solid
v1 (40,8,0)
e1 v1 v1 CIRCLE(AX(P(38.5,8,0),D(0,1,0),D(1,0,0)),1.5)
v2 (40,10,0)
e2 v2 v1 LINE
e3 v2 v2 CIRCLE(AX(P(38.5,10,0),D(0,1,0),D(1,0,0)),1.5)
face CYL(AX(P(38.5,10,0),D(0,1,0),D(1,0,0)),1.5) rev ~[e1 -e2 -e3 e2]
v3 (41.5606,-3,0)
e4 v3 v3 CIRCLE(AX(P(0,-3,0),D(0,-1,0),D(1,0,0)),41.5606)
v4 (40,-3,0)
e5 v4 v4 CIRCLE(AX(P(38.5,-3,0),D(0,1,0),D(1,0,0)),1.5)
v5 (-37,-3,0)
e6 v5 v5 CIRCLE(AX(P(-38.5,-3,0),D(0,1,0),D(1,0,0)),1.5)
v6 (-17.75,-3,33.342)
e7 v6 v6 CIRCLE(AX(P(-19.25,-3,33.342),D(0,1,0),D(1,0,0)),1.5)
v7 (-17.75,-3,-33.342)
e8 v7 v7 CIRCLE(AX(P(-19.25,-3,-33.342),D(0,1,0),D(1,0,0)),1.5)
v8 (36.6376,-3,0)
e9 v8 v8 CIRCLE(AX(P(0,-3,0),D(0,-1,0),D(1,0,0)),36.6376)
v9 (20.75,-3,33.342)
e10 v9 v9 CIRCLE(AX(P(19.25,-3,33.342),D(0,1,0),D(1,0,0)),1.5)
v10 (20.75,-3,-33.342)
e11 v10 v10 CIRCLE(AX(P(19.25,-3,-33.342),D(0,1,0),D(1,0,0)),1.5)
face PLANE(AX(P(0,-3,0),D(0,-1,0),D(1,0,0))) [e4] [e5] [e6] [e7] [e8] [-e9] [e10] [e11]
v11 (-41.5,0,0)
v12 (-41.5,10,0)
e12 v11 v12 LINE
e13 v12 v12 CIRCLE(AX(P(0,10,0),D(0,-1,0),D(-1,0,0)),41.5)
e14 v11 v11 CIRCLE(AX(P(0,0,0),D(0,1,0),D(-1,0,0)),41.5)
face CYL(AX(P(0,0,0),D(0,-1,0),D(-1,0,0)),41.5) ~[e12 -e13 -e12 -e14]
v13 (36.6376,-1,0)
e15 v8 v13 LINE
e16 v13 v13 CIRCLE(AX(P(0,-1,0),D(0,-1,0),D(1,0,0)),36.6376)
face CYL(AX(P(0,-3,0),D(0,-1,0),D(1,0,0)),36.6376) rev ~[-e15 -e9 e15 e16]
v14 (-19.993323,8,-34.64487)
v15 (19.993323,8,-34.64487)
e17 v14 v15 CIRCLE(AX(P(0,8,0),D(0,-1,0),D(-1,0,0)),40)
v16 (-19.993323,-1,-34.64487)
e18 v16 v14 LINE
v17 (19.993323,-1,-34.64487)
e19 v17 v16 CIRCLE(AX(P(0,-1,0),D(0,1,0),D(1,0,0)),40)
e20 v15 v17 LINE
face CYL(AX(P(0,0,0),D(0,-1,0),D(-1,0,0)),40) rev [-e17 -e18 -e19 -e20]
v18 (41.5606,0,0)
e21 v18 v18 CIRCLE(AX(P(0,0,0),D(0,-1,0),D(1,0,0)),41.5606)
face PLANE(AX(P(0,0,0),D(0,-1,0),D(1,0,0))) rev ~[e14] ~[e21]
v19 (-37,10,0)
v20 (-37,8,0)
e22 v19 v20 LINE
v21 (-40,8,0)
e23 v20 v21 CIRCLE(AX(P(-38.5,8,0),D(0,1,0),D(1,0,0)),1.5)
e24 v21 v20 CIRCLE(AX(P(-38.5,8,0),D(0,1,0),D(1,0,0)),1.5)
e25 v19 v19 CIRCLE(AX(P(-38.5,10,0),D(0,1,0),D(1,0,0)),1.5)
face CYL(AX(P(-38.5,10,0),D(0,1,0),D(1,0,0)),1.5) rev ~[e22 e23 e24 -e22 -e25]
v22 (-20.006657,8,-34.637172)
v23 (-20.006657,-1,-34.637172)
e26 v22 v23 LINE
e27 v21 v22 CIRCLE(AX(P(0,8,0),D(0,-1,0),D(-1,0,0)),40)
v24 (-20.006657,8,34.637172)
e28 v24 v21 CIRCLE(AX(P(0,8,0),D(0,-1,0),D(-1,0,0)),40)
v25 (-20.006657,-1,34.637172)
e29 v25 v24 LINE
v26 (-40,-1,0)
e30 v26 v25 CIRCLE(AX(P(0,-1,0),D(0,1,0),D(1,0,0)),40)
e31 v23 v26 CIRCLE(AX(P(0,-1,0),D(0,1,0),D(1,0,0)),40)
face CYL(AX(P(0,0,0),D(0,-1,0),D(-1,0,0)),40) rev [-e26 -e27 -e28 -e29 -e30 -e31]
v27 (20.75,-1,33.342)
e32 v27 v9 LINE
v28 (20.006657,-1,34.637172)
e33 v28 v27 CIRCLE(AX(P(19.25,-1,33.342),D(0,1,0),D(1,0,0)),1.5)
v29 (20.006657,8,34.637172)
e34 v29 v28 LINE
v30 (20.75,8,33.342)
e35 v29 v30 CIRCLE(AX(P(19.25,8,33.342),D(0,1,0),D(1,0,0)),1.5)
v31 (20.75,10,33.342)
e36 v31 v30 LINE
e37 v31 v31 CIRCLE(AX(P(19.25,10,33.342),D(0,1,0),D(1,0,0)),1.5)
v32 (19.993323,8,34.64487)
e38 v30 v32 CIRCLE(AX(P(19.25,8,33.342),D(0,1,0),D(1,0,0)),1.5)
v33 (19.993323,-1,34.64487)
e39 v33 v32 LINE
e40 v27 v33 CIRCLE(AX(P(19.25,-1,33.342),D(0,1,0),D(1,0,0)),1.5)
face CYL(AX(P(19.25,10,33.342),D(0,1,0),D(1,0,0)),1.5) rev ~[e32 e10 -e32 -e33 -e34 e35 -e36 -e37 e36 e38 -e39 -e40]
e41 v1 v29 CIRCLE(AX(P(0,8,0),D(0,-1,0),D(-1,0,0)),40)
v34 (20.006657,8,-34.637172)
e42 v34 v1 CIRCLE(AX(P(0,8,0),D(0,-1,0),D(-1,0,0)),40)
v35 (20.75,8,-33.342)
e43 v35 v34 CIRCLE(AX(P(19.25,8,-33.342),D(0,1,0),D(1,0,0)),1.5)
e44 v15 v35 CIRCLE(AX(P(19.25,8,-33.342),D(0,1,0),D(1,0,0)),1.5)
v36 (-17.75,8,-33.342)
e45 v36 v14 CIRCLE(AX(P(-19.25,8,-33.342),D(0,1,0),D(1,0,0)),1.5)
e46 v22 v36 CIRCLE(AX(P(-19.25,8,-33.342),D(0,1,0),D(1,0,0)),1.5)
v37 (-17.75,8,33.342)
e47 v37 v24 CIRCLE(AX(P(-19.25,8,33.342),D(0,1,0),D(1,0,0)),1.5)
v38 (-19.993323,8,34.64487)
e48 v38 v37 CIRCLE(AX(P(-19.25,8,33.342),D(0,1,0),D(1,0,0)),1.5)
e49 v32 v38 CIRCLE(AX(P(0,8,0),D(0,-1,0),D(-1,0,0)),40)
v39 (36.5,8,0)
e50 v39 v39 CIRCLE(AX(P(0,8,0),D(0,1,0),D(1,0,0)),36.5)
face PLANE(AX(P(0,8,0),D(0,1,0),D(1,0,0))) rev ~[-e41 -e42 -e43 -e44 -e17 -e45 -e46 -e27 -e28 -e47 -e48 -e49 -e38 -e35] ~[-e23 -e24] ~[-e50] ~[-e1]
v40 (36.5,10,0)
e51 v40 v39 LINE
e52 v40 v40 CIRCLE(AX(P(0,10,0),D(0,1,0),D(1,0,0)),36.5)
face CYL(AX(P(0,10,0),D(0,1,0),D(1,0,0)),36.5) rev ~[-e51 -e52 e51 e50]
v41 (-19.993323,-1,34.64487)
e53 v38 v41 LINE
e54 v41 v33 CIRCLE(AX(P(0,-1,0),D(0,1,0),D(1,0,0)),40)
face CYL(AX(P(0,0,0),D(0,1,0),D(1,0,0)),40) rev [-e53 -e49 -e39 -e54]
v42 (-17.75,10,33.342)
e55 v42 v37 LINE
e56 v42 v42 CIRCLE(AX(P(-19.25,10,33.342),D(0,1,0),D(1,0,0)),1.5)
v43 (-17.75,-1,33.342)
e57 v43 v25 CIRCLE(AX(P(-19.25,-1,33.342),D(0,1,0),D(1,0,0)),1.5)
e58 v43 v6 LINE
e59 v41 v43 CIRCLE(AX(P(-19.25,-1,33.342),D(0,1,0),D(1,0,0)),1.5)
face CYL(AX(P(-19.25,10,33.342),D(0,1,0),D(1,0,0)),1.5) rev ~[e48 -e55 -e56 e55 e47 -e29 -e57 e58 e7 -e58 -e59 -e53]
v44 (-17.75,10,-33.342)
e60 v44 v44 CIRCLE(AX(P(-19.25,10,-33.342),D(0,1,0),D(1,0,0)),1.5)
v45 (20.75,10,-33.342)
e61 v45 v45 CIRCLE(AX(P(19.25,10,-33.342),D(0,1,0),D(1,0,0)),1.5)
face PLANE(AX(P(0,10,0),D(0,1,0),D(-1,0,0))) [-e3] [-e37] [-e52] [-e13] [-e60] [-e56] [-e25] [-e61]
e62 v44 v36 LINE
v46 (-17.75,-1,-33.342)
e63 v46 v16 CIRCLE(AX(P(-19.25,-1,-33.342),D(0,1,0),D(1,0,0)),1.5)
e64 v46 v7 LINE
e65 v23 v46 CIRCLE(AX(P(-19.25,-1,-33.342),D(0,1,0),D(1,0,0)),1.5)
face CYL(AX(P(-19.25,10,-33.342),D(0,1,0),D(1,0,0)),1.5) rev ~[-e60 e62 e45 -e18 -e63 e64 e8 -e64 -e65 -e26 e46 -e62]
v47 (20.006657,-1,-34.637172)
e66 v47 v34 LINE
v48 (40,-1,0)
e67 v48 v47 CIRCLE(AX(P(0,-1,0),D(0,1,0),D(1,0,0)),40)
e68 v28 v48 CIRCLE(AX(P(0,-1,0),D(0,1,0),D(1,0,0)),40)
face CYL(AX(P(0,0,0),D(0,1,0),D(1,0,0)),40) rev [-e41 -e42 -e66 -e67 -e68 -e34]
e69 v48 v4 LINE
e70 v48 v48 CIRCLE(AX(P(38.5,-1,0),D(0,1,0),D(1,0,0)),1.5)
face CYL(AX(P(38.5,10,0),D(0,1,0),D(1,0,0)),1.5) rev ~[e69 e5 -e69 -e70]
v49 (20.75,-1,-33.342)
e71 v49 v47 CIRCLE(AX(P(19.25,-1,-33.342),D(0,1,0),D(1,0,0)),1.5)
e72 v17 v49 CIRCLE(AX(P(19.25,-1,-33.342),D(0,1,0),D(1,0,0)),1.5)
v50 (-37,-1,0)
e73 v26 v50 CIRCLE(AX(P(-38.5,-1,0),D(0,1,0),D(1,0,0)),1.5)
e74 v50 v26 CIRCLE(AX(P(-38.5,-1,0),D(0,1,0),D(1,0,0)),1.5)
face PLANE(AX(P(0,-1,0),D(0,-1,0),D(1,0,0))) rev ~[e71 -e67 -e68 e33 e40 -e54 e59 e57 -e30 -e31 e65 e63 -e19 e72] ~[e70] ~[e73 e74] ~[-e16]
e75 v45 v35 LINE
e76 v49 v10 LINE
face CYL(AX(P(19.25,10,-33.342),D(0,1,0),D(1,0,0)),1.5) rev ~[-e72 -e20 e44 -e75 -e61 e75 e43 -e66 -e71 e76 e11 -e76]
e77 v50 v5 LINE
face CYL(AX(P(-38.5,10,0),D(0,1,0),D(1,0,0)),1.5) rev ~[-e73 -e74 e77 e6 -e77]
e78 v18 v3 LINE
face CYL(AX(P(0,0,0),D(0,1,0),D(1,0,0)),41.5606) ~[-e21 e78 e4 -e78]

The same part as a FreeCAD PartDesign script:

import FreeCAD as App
import Part
import Sketcher
from FreeCAD import Vector

doc = App.newDocument("Part")
body = doc.addObject("PartDesign::Body", "Body")

# Sketch on XZ plane
sketch1 = body.newObject("Sketcher::SketchObject", "Sketch")
sketch1.AttachmentSupport = (doc.getObject("XZ_Plane"), [""])
sketch1.MapMode = "FlatFace"
sketch1.addGeometry([
    Part.Circle(Vector(0, 0, 0), Vector(0, 0, 1), 41.5),
    Part.Circle(Vector(0, 0, 0), Vector(0, 0, 1), 40),
], False)
sketch1.addConstraint([
    Sketcher.Constraint("Coincident", 0, 3, -1, 1),
    Sketcher.Constraint("Coincident", 1, 3, -1, 1),
    Sketcher.Constraint("Diameter", 0, 83.0),
    Sketcher.Constraint("Diameter", 1, 80.0),
])
pad1 = body.newObject("PartDesign::Pad", "Pad")
pad1.Profile = sketch1
pad1.Length = 10
pad1.Reversed = True

# Sketch on XZ plane
sketch2 = body.newObject("Sketcher::SketchObject", "Sketch001")
sketch2.AttachmentSupport = (doc.getObject("XZ_Plane"), [""])
sketch2.MapMode = "FlatFace"
sketch2.addGeometry([
    Part.Circle(Vector(0, 0, 0), Vector(0, 0, 1), 41.5606),
    Part.Circle(Vector(0, 0, 0), Vector(0, 0, 1), 40),
], False)
sketch2.addConstraint([
    Sketcher.Constraint("Coincident", 0, 3, -1, 1),
    Sketcher.Constraint("Coincident", 1, 3, -1, 1),
    Sketcher.Constraint("Diameter", 1, 80.0),
    Sketcher.Constraint("Diameter", 0, 83.1212),
])
pad2 = body.newObject("PartDesign::Pad", "Pad001")
pad2.Profile = sketch2
pad2.Length = 3

# Sketch on XZ plane
sketch3 = body.newObject("Sketcher::SketchObject", "Sketch002")
sketch3.AttachmentSupport = (doc.getObject("XZ_Plane"), [""])
sketch3.MapMode = "FlatFace"
sketch3.AttachmentOffset = App.Placement(Vector(0, 0, 3), App.Rotation())
sketch3.addGeometry([
    Part.Circle(Vector(0, 0, 0), Vector(0, 0, 1), 41.5606),
    Part.Circle(Vector(0, 0, 0), Vector(0, 0, 1), 36.6376),
], False)
sketch3.addConstraint([
    Sketcher.Constraint("Coincident", 0, 3, -1, 1),
    Sketcher.Constraint("Coincident", 1, 3, -1, 1),
    Sketcher.Constraint("Diameter", 0, 83.1212),
    Sketcher.Constraint("Diameter", 1, 73.2752),
])
pad3 = body.newObject("PartDesign::Pad", "Pad002")
pad3.Profile = sketch3
pad3.Length = 2
pad3.Reversed = True

# Sketch on XZ plane
sketch4 = body.newObject("Sketcher::SketchObject", "Sketch003")
sketch4.AttachmentSupport = (doc.getObject("XZ_Plane"), [""])
sketch4.MapMode = "FlatFace"
sketch4.AttachmentOffset = App.Placement(Vector(0, 0, -10), App.Rotation())
sketch4.addGeometry([
    Part.Circle(Vector(0, 0, 0), Vector(0, 0, 1), 41.5),
    Part.Circle(Vector(0, 0, 0), Vector(0, 0, 1), 36.5),
], False)
sketch4.addConstraint([
    Sketcher.Constraint("Coincident", 0, 3, -1, 1),
    Sketcher.Constraint("Coincident", 1, 3, -1, 1),
    Sketcher.Constraint("Diameter", 0, 83.0),
    Sketcher.Constraint("Diameter", 1, 73.0),
])
pad4 = body.newObject("PartDesign::Pad", "Pad003")
pad4.Profile = sketch4
pad4.Length = 2

# Sketch on XZ plane
sketch5 = body.newObject("Sketcher::SketchObject", "Sketch004")
sketch5.AttachmentSupport = (doc.getObject("XZ_Plane"), [""])
sketch5.MapMode = "FlatFace"
sketch5.AttachmentOffset = App.Placement(Vector(0, 0, -10), App.Rotation())
sketch5.addGeometry([
    Part.Circle(Vector(-38.5, 0, 0), Vector(0, 0, 1), 1.5),  # 0
    Part.Circle(Vector(-19.25, 33.342, 0), Vector(0, 0, 1), 1.5),  # 1
    Part.Circle(Vector(19.25, 33.342, 0), Vector(0, 0, 1), 1.5),  # 2
    Part.Circle(Vector(38.5, 0, 0), Vector(0, 0, 1), 1.5),  # 3
    Part.Circle(Vector(19.25, -33.342, 0), Vector(0, 0, 1), 1.5),  # 4
    Part.Circle(Vector(-19.25, -33.342, 0), Vector(0, 0, 1), 1.5),  # 5
], False)
sketch5.addConstraint([
    Sketcher.Constraint("Equal", 0, 1),
    Sketcher.Constraint("Equal", 1, 2),
    Sketcher.Constraint("Equal", 2, 3),
    Sketcher.Constraint("Equal", 3, 4),
    Sketcher.Constraint("Equal", 4, 5),
    Sketcher.Constraint("Symmetric", 0, 3, 3, 3, -1, 1),
    Sketcher.Constraint("Symmetric", 1, 3, 4, 3, -1, 1),
    Sketcher.Constraint("Symmetric", 2, 3, 5, 3, -1, 1),
    Sketcher.Constraint("Symmetric", 1, 3, 2, 3, -2),
    Sketcher.Constraint("PointOnObject", 0, 3, -1),
    Sketcher.Constraint("Diameter", 0, 3.0),
    Sketcher.Constraint("DistanceX", 0, 3, -1, 1, 38.5),
    Sketcher.Constraint("DistanceX", 1, 3, 2, 3, 38.5),
    Sketcher.Constraint("DistanceY", -1, 1, 1, 3, 33.342),
])
pocket1 = body.newObject("PartDesign::Pocket", "Pocket")
pocket1.Profile = sketch5
pocket1.Length = 100
pocket1.Reversed = True

doc.recompute()
